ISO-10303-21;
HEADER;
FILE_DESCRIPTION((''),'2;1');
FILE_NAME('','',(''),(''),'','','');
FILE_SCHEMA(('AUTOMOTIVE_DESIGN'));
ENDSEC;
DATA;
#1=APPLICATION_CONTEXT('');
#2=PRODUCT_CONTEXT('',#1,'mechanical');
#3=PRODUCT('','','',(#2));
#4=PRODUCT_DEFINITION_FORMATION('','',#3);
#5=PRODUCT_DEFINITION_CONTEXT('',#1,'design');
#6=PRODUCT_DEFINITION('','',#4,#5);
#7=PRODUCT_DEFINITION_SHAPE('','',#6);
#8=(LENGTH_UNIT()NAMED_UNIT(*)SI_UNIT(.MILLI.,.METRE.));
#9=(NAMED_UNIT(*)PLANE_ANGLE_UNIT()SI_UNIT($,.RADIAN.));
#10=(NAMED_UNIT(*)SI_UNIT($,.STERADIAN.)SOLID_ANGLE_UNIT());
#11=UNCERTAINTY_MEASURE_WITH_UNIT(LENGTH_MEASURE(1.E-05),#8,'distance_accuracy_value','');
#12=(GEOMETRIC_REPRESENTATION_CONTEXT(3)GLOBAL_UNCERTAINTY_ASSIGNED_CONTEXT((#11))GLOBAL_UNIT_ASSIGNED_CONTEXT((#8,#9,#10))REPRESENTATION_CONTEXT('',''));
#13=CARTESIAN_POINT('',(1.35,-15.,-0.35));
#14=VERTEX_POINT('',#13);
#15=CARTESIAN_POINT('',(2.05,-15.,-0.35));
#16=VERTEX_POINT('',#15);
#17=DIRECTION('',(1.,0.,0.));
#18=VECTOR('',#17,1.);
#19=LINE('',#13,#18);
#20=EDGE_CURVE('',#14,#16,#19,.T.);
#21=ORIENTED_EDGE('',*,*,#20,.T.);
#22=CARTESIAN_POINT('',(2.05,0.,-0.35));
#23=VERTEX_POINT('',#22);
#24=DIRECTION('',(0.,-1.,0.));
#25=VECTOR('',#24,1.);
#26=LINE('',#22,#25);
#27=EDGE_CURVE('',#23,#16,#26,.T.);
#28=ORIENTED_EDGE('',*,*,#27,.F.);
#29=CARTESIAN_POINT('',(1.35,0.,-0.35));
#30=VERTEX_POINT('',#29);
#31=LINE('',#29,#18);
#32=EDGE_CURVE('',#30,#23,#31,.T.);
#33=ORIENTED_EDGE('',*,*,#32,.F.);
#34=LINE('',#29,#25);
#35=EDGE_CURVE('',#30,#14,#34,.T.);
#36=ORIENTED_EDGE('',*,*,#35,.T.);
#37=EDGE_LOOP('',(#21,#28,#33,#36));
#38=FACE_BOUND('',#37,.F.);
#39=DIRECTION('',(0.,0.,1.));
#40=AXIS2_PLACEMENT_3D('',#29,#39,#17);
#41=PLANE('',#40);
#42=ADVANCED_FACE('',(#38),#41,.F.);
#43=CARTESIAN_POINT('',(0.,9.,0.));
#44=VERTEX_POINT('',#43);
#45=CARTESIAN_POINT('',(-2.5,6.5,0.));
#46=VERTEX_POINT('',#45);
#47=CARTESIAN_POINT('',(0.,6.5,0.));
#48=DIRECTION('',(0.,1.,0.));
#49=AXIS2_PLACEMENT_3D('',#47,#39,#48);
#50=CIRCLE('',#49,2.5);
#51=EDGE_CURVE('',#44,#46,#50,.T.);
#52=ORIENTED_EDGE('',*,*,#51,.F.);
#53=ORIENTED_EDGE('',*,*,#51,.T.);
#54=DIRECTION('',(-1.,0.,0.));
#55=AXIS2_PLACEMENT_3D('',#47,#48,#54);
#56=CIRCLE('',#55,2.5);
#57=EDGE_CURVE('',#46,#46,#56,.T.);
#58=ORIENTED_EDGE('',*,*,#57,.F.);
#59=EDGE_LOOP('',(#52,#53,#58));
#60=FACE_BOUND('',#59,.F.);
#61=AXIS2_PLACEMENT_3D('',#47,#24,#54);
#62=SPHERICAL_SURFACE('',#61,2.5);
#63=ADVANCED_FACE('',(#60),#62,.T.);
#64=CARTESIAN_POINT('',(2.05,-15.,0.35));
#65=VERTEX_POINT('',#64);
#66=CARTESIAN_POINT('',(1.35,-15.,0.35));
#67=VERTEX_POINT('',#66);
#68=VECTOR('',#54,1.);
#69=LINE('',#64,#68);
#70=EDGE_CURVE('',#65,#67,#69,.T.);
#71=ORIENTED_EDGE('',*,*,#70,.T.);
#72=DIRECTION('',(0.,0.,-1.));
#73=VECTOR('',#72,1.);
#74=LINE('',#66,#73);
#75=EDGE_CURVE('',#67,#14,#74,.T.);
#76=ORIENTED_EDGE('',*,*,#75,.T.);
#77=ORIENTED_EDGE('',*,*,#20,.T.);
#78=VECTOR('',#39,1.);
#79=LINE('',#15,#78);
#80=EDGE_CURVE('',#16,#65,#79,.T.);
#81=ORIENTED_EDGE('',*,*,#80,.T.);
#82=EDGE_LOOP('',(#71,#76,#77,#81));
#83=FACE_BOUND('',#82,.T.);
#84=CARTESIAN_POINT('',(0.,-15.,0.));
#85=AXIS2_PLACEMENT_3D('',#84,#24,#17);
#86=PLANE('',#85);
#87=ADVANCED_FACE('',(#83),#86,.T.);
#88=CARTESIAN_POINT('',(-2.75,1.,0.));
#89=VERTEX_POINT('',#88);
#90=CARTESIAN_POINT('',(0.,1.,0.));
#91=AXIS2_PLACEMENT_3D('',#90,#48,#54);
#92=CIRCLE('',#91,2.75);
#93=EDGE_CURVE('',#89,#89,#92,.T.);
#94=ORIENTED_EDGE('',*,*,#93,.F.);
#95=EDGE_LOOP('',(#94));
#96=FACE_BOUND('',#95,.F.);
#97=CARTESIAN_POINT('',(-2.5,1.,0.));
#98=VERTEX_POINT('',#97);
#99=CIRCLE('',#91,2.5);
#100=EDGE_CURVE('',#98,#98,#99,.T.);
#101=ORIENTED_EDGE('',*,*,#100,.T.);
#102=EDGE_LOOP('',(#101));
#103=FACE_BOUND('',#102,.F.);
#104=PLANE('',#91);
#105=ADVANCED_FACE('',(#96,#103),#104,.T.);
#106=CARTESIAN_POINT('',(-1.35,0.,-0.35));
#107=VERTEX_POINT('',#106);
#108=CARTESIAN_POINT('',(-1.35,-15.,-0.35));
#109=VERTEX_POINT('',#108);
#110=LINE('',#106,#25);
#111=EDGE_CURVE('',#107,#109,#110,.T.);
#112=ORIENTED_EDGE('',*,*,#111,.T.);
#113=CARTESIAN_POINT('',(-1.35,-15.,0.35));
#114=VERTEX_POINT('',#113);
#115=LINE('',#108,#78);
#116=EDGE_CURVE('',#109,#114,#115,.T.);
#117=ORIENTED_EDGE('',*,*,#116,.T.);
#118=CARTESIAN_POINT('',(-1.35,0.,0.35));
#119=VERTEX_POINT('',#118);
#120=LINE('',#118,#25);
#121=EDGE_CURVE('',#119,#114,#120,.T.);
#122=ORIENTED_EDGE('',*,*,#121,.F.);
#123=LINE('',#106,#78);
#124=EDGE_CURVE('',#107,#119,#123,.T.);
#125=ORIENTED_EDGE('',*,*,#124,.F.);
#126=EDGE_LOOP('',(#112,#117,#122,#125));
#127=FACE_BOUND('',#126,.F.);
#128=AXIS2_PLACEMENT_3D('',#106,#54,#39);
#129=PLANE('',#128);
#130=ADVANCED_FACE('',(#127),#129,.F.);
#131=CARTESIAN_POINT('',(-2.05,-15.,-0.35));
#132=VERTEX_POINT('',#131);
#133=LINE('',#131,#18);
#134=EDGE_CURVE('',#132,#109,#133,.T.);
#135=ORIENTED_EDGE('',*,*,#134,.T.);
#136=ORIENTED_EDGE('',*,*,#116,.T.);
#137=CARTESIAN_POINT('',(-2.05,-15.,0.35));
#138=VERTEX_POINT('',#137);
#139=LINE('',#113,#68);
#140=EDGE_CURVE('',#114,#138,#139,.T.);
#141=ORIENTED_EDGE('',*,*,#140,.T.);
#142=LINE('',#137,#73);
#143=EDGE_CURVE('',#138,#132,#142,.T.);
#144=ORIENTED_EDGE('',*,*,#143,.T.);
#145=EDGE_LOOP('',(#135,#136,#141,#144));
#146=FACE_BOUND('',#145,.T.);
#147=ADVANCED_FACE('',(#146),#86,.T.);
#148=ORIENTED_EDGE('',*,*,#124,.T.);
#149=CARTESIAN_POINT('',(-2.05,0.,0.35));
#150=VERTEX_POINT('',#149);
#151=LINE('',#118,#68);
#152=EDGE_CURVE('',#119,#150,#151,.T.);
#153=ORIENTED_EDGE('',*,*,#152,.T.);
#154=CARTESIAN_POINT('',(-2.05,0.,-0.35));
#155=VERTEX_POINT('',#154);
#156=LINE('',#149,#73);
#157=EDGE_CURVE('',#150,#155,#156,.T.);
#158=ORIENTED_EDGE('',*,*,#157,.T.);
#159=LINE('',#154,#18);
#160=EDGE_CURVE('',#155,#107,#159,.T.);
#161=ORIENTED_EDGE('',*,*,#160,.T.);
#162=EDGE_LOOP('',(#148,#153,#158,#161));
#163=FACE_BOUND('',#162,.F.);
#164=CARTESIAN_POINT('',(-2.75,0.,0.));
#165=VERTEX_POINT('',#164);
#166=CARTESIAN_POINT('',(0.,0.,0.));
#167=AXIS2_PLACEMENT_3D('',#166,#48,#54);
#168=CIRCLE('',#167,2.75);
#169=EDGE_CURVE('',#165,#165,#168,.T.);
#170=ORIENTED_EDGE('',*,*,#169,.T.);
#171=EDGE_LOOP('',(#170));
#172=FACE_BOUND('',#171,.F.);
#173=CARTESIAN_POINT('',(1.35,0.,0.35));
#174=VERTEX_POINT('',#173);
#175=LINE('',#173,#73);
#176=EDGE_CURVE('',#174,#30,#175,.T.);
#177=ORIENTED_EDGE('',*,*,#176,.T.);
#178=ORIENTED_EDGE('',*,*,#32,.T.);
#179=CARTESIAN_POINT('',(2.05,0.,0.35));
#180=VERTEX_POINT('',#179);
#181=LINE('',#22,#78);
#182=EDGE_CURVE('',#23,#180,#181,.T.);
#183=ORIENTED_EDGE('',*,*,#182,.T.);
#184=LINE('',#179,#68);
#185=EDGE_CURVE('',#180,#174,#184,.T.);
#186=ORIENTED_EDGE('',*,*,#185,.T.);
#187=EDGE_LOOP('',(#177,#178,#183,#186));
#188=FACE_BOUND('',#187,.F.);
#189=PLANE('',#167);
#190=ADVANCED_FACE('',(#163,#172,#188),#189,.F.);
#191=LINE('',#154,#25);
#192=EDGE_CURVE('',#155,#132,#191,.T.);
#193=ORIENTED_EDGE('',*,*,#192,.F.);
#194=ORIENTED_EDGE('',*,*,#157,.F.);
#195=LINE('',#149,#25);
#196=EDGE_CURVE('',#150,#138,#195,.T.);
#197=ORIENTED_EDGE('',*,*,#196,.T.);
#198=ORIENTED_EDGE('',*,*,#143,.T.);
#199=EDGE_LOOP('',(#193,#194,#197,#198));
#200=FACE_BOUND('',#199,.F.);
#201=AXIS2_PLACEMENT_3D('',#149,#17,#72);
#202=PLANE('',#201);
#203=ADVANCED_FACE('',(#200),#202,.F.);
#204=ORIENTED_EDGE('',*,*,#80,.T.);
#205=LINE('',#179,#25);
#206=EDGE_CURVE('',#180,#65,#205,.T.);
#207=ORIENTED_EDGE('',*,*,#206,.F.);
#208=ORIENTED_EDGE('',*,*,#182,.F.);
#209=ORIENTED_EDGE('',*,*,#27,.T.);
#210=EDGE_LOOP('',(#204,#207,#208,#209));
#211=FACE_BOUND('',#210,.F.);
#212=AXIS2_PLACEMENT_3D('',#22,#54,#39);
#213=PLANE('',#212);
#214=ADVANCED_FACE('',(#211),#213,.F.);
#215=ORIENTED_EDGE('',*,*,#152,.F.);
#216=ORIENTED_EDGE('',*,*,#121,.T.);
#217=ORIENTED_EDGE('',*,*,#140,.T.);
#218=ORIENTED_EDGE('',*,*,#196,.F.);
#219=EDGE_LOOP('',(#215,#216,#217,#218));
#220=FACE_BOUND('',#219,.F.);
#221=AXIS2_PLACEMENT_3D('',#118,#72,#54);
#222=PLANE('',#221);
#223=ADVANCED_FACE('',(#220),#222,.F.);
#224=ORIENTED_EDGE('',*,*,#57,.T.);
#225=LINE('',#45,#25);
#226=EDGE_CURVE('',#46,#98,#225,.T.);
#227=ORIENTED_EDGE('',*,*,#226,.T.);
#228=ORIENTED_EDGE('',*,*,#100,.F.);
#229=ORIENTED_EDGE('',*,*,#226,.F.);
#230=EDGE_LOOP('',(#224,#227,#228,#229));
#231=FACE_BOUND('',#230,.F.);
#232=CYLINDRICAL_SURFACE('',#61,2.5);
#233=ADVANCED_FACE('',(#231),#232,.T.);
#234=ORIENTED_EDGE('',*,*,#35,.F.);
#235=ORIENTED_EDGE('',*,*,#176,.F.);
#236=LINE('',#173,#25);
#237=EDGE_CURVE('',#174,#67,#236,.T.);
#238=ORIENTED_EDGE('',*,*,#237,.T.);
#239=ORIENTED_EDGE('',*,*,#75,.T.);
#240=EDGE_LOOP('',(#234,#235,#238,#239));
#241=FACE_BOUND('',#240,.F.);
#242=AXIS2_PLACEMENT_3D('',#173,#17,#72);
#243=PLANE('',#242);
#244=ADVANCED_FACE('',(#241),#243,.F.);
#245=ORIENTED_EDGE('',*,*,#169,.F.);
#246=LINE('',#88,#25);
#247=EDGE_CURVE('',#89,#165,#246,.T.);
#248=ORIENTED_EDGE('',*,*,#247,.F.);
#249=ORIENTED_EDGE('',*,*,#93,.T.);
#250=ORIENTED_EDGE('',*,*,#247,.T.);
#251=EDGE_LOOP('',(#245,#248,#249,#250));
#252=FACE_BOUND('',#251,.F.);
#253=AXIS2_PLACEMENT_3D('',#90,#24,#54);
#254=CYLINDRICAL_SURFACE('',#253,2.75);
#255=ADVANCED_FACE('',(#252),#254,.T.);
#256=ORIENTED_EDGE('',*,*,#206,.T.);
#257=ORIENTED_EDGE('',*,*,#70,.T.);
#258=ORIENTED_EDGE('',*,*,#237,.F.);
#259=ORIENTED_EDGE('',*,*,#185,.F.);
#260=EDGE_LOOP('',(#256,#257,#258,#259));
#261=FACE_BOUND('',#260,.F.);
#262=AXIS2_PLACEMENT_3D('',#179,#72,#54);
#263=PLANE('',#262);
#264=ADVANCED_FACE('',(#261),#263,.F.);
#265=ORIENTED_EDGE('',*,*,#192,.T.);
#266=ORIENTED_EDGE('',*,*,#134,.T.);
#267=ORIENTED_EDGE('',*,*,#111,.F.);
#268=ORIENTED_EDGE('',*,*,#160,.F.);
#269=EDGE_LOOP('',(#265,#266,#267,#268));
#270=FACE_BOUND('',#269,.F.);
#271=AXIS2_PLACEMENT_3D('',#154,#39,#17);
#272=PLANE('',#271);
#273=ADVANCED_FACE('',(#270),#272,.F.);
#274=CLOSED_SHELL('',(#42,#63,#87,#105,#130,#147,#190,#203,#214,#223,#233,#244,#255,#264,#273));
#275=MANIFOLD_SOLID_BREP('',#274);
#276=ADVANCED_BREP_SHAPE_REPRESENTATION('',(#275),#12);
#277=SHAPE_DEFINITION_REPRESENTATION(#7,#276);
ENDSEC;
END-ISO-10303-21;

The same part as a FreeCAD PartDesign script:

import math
import FreeCAD as App
import Part
import Sketcher
from FreeCAD import Vector
Q = App.Units.Quantity

doc = App.newDocument("Part")
params = doc.addObject("Spreadsheet::Sheet", "Params")
for row, (alias, value) in enumerate([
    ("sketch1_radius", "2.5 mm"),
    ("sketch1_height", "1 mm"),
    ("sketch1_height2", "5.5 mm"),
    ("sketch1_width", "2.75 mm"),
    ("revolution_angle", "360 deg"),
    ("sketch2_width", "0.7 mm"),
    ("pad1_length", "15 mm"),
], start=1):
    params.set(f"A{row}", alias)
    params.set(f"B{row}", "=" + value)
    params.setAlias(f"B{row}", alias)

body = doc.addObject("PartDesign::Body", "Body")

# Sketch on XY plane
sketch1 = doc.addObject("Sketcher::SketchObject", "Sketch")
body.addObject(sketch1)
sketch1.AttachmentSupport = (doc.XY_Plane, [""])
sketch1.MapMode = "FlatFace"
sketch1.addGeometry([
    Part.LineSegment(Vector(-2.75, 0, 0), Vector(0, 0, 0)),  # 0
    Part.LineSegment(Vector(0, 0, 0), Vector(0, 9, 0)),  # 1
    Part.ArcOfCircle(Part.Circle(Vector(0, 6.5, 0), Vector(0, 0, 1), 2.5), math.radians(90), math.radians(180)),  # 2
    Part.LineSegment(Vector(-2.5, 6.5, 0), Vector(-2.5, 1, 0)),  # 3
    Part.LineSegment(Vector(-2.5, 1, 0), Vector(-2.75, 1, 0)),  # 4
    Part.LineSegment(Vector(-2.75, 1, 0), Vector(-2.75, 0, 0)),  # 5
], False)
sketch1.addConstraint([
    Sketcher.Constraint("Coincident", 0, 2, 1, 1),
    Sketcher.Constraint("Coincident", 1, 2, 2, 1),
    Sketcher.Constraint("Tangent", 2, 2, 3, 1),
    Sketcher.Constraint("Coincident", 3, 2, 4, 1),
    Sketcher.Constraint("Coincident", 4, 2, 5, 1),
    Sketcher.Constraint("Coincident", 5, 2, 0, 1),
    Sketcher.Constraint("Horizontal", 0),
    Sketcher.Constraint("Vertical", 1),
    Sketcher.Constraint("Vertical", 3),
    Sketcher.Constraint("Horizontal", 4),
    Sketcher.Constraint("Vertical", 5),
    Sketcher.Constraint("Coincident", 0, 2, -1, 1),
    Sketcher.Constraint("PointOnObject", 2, 3, -2),
    Sketcher.Constraint("Radius", 2, Q("2.5 mm")),
    Sketcher.Constraint("DistanceY", 5, 2, 5, 1, Q("1 mm")),
    Sketcher.Constraint("DistanceY", 3, 2, 3, 1, Q("5.5 mm")),
    Sketcher.Constraint("DistanceX", 0, 1, 0, 2, Q("2.75 mm")),
])
sketch1.setExpression("Constraints[13]", "Params.sketch1_radius")
sketch1.setExpression("Constraints[14]", "Params.sketch1_height")
sketch1.setExpression("Constraints[15]", "Params.sketch1_height2")
sketch1.setExpression("Constraints[16]", "Params.sketch1_width")
revolution = doc.addObject("PartDesign::Revolution", "Revolution")
body.addObject(revolution)
revolution.Profile = sketch1
revolution.ReferenceAxis = (sketch1, ["V_Axis"])
revolution.setExpression("Angle", "Params.revolution_angle")

# Sketch on XZ plane
sketch2 = doc.addObject("Sketcher::SketchObject", "Sketch001")
body.addObject(sketch2)
sketch2.AttachmentSupport = (doc.XZ_Plane, [""])
sketch2.MapMode = "FlatFace"
sketch2.addGeometry([
    Part.LineSegment(Vector(-2.05, 0.35, 0), Vector(-2.05, -0.35, 0)),  # 0
    Part.LineSegment(Vector(-2.05, -0.35, 0), Vector(-1.35, -0.35, 0)),  # 1
    Part.LineSegment(Vector(-1.35, -0.35, 0), Vector(-1.35, 0.35, 0)),  # 2
    Part.LineSegment(Vector(-1.35, 0.35, 0), Vector(-2.05, 0.35, 0)),  # 3
    Part.LineSegment(Vector(1.35, 0.35, 0), Vector(1.35, -0.35, 0)),  # 4
    Part.LineSegment(Vector(1.35, -0.35, 0), Vector(2.05, -0.35, 0)),  # 5
    Part.LineSegment(Vector(2.05, -0.35, 0), Vector(2.05, 0.35, 0)),  # 6
    Part.LineSegment(Vector(2.05, 0.35, 0), Vector(1.35, 0.35, 0)),  # 7
], False)
sketch2.addConstraint([
    Sketcher.Constraint("Coincident", 0, 2, 1, 1),
    Sketcher.Constraint("Coincident", 1, 2, 2, 1),
    Sketcher.Constraint("Coincident", 2, 2, 3, 1),
    Sketcher.Constraint("Coincident", 3, 2, 0, 1),
    Sketcher.Constraint("Coincident", 4, 2, 5, 1),
    Sketcher.Constraint("Coincident", 5, 2, 6, 1),
    Sketcher.Constraint("Coincident", 6, 2, 7, 1),
    Sketcher.Constraint("Coincident", 7, 2, 4, 1),
    Sketcher.Constraint("Vertical", 0),
    Sketcher.Constraint("Horizontal", 1),
    Sketcher.Constraint("Vertical", 2),
    Sketcher.Constraint("Horizontal", 3),
    Sketcher.Constraint("Vertical", 4),
    Sketcher.Constraint("Horizontal", 5),
    Sketcher.Constraint("Vertical", 6),
    Sketcher.Constraint("Horizontal", 7),
    Sketcher.Constraint("Symmetric", 2, 2, 4, 2, -1, 1),
    Sketcher.Constraint("Symmetric", 0, 2, 6, 2, -1, 1),
    Sketcher.Constraint("Horizontal", 1, 2, 4, 2),
    Sketcher.Constraint("Equal", 7, 0),
    Sketcher.Constraint("DistanceX", 1, 1, 1, 2, Q("0.7 mm")),
    Sketcher.Constraint("DistanceX", 1, 2, 4, 2, Q("2.7 mm")),
])
sketch2.setExpression("Constraints[20]", "Params.sketch2_width")
pad1 = doc.addObject("PartDesign::Pad", "Pad")
body.addObject(pad1)
pad1.Profile = sketch2
pad1.setExpression("Length", "Params.pad1_length")

doc.recompute()
